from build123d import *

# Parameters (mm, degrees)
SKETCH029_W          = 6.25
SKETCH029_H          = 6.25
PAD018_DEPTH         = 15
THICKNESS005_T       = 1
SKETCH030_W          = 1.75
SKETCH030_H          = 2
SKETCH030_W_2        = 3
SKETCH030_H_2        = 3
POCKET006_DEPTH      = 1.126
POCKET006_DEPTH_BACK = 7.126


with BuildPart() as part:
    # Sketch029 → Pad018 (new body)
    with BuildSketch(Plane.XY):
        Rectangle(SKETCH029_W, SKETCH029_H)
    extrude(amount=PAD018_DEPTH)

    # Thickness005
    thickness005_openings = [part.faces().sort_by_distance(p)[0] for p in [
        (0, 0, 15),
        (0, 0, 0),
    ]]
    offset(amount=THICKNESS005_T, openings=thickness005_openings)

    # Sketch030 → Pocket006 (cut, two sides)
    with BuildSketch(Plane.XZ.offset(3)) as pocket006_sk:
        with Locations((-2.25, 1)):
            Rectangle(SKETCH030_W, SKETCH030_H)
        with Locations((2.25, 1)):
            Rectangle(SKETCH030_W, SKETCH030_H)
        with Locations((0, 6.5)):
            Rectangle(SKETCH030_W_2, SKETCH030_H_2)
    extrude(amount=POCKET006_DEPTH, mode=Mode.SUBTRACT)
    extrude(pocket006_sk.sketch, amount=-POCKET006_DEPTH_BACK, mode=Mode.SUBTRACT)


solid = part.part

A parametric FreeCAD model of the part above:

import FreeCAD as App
import Part
import Sketcher
from FreeCAD import Vector
Q = App.Units.Quantity


def faces_at(feature, points):
    """Names of the faces that lie closest to the given points."""
    faces = feature.Shape.Faces
    near = lambda p: min(range(len(faces)), key=lambda i: faces[i].distToShape(Part.Vertex(*p))[0])
    return sorted({f"Face{near(p) + 1}" for p in points})

doc = App.newDocument("Part")
params = doc.addObject("Spreadsheet::Sheet", "Params")
for row, (alias, value) in enumerate([
    ("sketch1_width", "6.25 mm"),
    ("pad1_length", "15 mm"),
    ("thickness_wall", "1 mm"),
    ("sketch2_width", "3 mm"),
    ("sketch2_height", "2 mm"),
    ("sketch2_width2", "1.75 mm"),
], start=1):
    params.set(f"A{row}", alias)
    params.set(f"B{row}", "=" + value)
    params.setAlias(f"B{row}", alias)

body = doc.addObject("PartDesign::Body", "Body")

sketch1 = doc.addObject("Sketcher::SketchObject", "Sketch")
body.addObject(sketch1)
sketch1.AttachmentSupport = (doc.XY_Plane, [""])
sketch1.MapMode = "FlatFace"
sketch1.addGeometry(Part.LineSegment(Vector(-3.125, 3.125, 0), Vector(-3.125, -3.125, 0)), False)
sketch1.addGeometry(Part.LineSegment(Vector(-3.125, -3.125, 0), Vector(3.125, -3.125, 0)), False)
sketch1.addGeometry(Part.LineSegment(Vector(3.125, -3.125, 0), Vector(3.125, 3.125, 0)), False)
sketch1.addGeometry(Part.LineSegment(Vector(3.125, 3.125, 0), Vector(-3.125, 3.125, 0)), False)
sketch1.addConstraint(Sketcher.Constraint("Coincident", 0, 2, 1, 1))
sketch1.addConstraint(Sketcher.Constraint("Coincident", 1, 2, 2, 1))
sketch1.addConstraint(Sketcher.Constraint("Coincident", 2, 2, 3, 1))
sketch1.addConstraint(Sketcher.Constraint("Coincident", 3, 2, 0, 1))
sketch1.addConstraint(Sketcher.Constraint("Vertical", 0))
sketch1.addConstraint(Sketcher.Constraint("Horizontal", 1))
sketch1.addConstraint(Sketcher.Constraint("Vertical", 2))
sketch1.addConstraint(Sketcher.Constraint("Horizontal", 3))
sketch1.addConstraint(Sketcher.Constraint("Symmetric", 0, 2, 2, 2, -1, 1))
sketch1.addConstraint(Sketcher.Constraint("Equal", 3, 0))
sketch1.addConstraint(Sketcher.Constraint("DistanceX", 1, 1, 1, 2, Q("6.25 mm")))
sketch1.setExpression("Constraints[10]", "Params.sketch1_width")
pad1 = doc.addObject("PartDesign::Pad", "Pad")
body.addObject(pad1)
pad1.Profile = sketch1
pad1.setExpression("Length", "Params.pad1_length")
doc.recompute()

thickness = doc.addObject("PartDesign::Thickness", "Thickness")
body.addObject(thickness)
thickness.Base = (pad1, faces_at(pad1, [(0, 0, 15), (0, 0, 0)]))
thickness.setExpression("Value", "Params.thickness_wall")
thickness.Reversed = False
thickness.Join = "Arc"

sketch2 = doc.addObject("Sketcher::SketchObject", "Sketch001")
body.addObject(sketch2)
sketch2.AttachmentSupport = (doc.XZ_Plane, [""])
sketch2.MapMode = "FlatFace"
sketch2.AttachmentOffset = App.Placement(Vector(0, 0, 3), App.Rotation())
sketch2.addGeometry(Part.LineSegment(Vector(-3.125, 2, 0), Vector(-3.125, 0, 0)), False)
sketch2.addGeometry(Part.LineSegment(Vector(-3.125, 0, 0), Vector(-1.375, 0, 0)), False)
sketch2.addGeometry(Part.LineSegment(Vector(-1.375, 0, 0), Vector(-1.375, 2, 0)), False)
sketch2.addGeometry(Part.LineSegment(Vector(-1.375, 2, 0), Vector(-3.125, 2, 0)), False)
sketch2.addGeometry(Part.LineSegment(Vector(1.375, 2, 0), Vector(1.375, 0, 0)), False)
sketch2.addGeometry(Part.LineSegment(Vector(1.375, 0, 0), Vector(3.125, 0, 0)), False)
sketch2.addGeometry(Part.LineSegment(Vector(3.125, 0, 0), Vector(3.125, 2, 0)), False)
sketch2.addGeometry(Part.LineSegment(Vector(3.125, 2, 0), Vector(1.375, 2, 0)), False)
sketch2.addGeometry(Part.LineSegment(Vector(-1.5, 8, 0), Vector(-1.5, 5, 0)), False)
sketch2.addGeometry(Part.LineSegment(Vector(-1.5, 5, 0), Vector(1.5, 5, 0)), False)
sketch2.addGeometry(Part.LineSegment(Vector(1.5, 5, 0), Vector(1.5, 8, 0)), False)
sketch2.addGeometry(Part.LineSegment(Vector(1.5, 8, 0), Vector(-1.5, 8, 0)), False)
sketch2.addConstraint(Sketcher.Constraint("Coincident", 0, 2, 1, 1))
sketch2.addConstraint(Sketcher.Constraint("Coincident", 1, 2, 2, 1))
sketch2.addConstraint(Sketcher.Constraint("Coincident", 2, 2, 3, 1))
sketch2.addConstraint(Sketcher.Constraint("Coincident", 3, 2, 0, 1))
sketch2.addConstraint(Sketcher.Constraint("Coincident", 4, 2, 5, 1))
sketch2.addConstraint(Sketcher.Constraint("Coincident", 5, 2, 6, 1))
sketch2.addConstraint(Sketcher.Constraint("Coincident", 6, 2, 7, 1))
sketch2.addConstraint(Sketcher.Constraint("Coincident", 7, 2, 4, 1))
sketch2.addConstraint(Sketcher.Constraint("Coincident", 8, 2, 9, 1))
sketch2.addConstraint(Sketcher.Constraint("Coincident", 9, 2, 10, 1))
sketch2.addConstraint(Sketcher.Constraint("Coincident", 10, 2, 11, 1))
sketch2.addConstraint(Sketcher.Constraint("Coincident", 11, 2, 8, 1))
sketch2.addConstraint(Sketcher.Constraint("Vertical", 0))
sketch2.addConstraint(Sketcher.Constraint("Horizontal", 1))
sketch2.addConstraint(Sketcher.Constraint("Vertical", 2))
sketch2.addConstraint(Sketcher.Constraint("Horizontal", 3))
sketch2.addConstraint(Sketcher.Constraint("Vertical", 4))
sketch2.addConstraint(Sketcher.Constraint("Horizontal", 5))
sketch2.addConstraint(Sketcher.Constraint("Vertical", 6))
sketch2.addConstraint(Sketcher.Constraint("Horizontal", 7))
sketch2.addConstraint(Sketcher.Constraint("Vertical", 8))
sketch2.addConstraint(Sketcher.Constraint("Horizontal", 9))
sketch2.addConstraint(Sketcher.Constraint("Vertical", 10))
sketch2.addConstraint(Sketcher.Constraint("Horizontal", 11))
sketch2.addConstraint(Sketcher.Constraint("Symmetric", 1, 2, 4, 2, -1, 1))
sketch2.addConstraint(Sketcher.Constraint("Symmetric", 0, 2, 5, 2, -2))
sketch2.addConstraint(Sketcher.Constraint("Horizontal", 3, 2, 6, 2))
sketch2.addConstraint(Sketcher.Constraint("Equal", 11, 8))
sketch2.addConstraint(Sketcher.Constraint("DistanceX", 9, 1, 9, 2, Q("3 mm")))
sketch2.addConstraint(Sketcher.Constraint("DistanceY", 0, 2, 0, 1, Q("2 mm")))
sketch2.addConstraint(Sketcher.Constraint("DistanceY", -1, 1, 8, 2, Q("5 mm")))
sketch2.addConstraint(Sketcher.Constraint("DistanceX", 1, 1, 1, 2, Q("1.75 mm")))
sketch2.addConstraint(Sketcher.Constraint("DistanceX", 8, 2, -1, 1, Q("1.5 mm")))
sketch2.addConstraint(Sketcher.Constraint("DistanceX", 0, 2, 4, 2, Q("4.5 mm")))
sketch2.setExpression("Constraints[28]", "Params.sketch2_width")
sketch2.setExpression("Constraints[29]", "Params.sketch2_height")
sketch2.setExpression("Constraints[31]", "Params.sketch2_width2")
pocket1 = doc.addObject("PartDesign::Pocket", "Pocket")
body.addObject(pocket1)
pocket1.Profile = sketch2
pocket1.Type = "ThroughAll"
pocket1.Midplane = True

doc.recompute()
